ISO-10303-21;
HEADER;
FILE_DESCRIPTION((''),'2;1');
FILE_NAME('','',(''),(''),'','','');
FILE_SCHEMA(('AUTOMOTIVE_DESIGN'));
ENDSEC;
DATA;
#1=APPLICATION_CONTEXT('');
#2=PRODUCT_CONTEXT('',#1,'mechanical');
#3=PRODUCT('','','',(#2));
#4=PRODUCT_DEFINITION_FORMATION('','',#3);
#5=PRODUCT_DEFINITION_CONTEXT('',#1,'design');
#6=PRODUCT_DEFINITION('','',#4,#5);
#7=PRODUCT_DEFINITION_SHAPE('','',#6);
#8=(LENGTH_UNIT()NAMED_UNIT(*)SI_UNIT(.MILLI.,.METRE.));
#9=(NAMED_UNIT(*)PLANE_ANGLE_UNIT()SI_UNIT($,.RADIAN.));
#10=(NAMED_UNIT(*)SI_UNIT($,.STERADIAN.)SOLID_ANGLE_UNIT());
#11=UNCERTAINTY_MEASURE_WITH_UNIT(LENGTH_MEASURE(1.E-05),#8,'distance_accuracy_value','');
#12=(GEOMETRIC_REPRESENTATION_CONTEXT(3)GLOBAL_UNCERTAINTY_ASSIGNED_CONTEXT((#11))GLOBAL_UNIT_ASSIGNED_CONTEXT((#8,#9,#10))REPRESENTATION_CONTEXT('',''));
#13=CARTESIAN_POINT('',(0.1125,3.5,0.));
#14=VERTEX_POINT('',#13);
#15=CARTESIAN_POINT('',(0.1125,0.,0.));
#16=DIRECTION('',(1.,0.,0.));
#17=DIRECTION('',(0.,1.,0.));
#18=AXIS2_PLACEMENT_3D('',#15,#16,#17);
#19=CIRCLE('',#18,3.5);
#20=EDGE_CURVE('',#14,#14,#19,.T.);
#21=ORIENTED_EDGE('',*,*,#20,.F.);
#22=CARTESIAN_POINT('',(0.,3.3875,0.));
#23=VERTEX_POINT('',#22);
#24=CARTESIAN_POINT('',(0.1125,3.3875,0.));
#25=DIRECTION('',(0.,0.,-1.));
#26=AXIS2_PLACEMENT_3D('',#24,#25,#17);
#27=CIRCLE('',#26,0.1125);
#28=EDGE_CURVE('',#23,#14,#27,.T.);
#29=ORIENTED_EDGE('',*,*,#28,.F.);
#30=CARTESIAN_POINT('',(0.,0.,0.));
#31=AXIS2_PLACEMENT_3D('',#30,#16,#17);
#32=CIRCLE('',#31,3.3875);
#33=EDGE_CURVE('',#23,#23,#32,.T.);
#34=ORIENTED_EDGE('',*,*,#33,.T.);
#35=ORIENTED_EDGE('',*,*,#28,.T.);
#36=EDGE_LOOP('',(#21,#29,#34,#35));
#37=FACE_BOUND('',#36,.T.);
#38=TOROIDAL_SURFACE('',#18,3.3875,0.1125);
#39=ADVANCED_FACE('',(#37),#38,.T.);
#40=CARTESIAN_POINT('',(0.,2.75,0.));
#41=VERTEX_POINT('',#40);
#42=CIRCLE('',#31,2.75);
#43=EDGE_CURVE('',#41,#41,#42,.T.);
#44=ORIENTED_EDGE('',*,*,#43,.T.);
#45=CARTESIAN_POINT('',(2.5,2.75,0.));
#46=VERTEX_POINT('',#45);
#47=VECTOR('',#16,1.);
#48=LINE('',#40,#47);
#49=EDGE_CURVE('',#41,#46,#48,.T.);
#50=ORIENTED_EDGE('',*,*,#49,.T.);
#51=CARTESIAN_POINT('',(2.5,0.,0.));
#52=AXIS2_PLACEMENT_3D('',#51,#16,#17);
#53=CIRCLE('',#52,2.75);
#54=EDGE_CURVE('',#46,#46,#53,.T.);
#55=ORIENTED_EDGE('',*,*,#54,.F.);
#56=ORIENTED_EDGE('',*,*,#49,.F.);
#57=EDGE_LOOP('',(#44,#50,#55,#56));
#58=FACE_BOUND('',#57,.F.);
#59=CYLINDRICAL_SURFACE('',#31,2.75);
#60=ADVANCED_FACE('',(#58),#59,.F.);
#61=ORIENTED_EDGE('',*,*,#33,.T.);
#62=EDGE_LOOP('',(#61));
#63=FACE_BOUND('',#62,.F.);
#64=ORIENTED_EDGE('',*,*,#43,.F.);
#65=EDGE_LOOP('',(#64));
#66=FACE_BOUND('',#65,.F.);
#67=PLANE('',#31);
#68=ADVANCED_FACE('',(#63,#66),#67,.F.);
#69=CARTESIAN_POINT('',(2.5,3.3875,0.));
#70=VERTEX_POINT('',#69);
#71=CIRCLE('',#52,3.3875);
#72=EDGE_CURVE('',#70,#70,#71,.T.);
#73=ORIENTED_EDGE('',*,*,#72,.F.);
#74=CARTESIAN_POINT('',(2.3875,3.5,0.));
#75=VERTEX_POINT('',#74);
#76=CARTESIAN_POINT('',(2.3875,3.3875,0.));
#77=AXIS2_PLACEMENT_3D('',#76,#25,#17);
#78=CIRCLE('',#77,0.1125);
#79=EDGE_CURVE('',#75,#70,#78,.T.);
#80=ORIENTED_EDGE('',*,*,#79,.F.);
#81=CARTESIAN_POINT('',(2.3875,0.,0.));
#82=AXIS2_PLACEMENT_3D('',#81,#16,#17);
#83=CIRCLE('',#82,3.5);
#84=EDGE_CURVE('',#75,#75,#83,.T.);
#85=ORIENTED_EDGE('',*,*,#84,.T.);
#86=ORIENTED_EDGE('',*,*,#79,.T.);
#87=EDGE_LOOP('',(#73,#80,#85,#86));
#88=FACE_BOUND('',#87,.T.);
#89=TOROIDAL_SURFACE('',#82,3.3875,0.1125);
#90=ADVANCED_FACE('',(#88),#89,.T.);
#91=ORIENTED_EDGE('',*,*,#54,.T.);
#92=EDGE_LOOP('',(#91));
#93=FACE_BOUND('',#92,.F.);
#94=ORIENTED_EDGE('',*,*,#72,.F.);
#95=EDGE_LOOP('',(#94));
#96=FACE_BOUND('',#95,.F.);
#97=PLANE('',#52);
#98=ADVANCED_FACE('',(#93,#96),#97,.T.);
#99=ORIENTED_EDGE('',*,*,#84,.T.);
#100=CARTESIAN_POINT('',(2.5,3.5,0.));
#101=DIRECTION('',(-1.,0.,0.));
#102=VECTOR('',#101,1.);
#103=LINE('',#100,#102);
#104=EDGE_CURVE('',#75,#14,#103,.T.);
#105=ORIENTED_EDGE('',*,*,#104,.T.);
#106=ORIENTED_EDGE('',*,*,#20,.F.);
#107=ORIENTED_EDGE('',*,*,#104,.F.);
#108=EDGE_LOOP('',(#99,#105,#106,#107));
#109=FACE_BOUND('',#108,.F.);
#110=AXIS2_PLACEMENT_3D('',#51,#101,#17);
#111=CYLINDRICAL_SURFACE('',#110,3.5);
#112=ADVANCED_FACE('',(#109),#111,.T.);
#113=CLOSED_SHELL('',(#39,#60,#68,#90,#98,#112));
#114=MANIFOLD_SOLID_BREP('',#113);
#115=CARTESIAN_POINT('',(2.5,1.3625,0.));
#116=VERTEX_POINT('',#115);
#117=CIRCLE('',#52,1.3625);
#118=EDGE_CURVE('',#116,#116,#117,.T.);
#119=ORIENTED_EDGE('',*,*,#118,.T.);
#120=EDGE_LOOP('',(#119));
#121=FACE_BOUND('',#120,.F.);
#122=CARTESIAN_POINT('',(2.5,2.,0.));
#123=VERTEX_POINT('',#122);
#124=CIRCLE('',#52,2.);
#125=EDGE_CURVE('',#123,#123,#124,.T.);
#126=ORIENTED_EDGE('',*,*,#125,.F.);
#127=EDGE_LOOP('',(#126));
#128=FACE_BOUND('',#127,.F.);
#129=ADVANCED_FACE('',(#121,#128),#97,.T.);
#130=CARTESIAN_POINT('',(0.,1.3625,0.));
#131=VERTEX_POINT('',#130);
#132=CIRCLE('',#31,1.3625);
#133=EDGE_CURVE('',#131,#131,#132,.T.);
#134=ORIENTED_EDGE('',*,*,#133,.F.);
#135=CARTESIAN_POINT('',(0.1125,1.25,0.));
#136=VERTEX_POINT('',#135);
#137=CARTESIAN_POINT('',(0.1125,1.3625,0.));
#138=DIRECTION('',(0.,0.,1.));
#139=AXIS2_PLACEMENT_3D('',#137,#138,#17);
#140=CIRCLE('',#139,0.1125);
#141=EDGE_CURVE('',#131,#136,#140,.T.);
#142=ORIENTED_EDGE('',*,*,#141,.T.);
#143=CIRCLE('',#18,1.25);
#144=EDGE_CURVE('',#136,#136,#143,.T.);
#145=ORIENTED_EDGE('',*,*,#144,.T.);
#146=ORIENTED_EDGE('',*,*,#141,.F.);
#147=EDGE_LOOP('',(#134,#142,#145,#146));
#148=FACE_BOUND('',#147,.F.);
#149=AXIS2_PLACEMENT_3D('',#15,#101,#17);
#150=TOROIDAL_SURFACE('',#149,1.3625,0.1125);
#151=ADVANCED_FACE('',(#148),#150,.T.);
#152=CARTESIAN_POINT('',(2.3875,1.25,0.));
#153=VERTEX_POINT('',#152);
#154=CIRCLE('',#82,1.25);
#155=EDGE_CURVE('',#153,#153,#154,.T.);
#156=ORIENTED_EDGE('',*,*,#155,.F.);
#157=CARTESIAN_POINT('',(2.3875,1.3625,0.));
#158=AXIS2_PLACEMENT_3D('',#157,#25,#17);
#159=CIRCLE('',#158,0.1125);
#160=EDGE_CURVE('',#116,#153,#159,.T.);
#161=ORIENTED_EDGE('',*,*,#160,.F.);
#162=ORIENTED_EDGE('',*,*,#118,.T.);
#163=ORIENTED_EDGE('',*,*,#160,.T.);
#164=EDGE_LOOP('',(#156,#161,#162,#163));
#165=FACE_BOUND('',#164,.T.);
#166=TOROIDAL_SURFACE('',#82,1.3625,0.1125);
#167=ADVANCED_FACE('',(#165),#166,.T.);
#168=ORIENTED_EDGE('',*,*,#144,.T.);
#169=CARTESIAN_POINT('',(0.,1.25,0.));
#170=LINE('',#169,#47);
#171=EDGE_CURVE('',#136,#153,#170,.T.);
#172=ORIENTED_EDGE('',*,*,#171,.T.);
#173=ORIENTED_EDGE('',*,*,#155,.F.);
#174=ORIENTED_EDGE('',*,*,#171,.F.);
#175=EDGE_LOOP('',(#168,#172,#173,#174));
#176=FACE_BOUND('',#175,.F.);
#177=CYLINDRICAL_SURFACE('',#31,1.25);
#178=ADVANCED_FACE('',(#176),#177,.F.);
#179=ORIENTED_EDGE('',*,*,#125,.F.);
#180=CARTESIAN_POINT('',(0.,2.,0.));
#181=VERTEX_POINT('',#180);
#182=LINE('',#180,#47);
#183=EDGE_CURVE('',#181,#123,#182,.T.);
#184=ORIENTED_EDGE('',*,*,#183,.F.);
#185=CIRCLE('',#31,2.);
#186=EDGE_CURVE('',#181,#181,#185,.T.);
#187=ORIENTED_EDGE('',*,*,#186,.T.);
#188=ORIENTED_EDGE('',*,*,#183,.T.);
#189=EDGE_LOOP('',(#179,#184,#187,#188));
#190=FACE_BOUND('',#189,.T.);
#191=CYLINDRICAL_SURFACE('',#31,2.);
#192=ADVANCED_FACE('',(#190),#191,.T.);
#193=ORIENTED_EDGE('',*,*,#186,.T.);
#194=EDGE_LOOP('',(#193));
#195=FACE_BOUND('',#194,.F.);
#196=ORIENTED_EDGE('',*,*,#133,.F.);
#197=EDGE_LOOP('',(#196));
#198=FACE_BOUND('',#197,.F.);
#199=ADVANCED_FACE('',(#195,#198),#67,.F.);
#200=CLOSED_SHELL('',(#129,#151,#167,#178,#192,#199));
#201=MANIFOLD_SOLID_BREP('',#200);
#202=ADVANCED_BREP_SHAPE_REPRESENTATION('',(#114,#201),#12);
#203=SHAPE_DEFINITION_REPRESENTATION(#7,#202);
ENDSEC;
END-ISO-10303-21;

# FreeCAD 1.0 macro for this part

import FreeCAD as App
import Part
import Sketcher


def edges_at(feature, points):
    """Names of the edges that pass closest to the given points."""
    edges = feature.Shape.Edges
    near = lambda p: min(range(len(edges)), key=lambda i: edges[i].distToShape(Part.Vertex(*p))[0])
    return sorted({f"Edge{near(p) + 1}" for p in points})


def add_polygon(sketch, points):
    """Adds a closed chain of lines whose ends are joined by coincident constraints."""
    first, n = sketch.GeometryCount, len(points)
    for a, b in zip(points, points[1:] + points[:1]):
        sketch.addGeometry(Part.LineSegment(App.Vector(*a, 0), App.Vector(*b, 0)), False)
    for i in range(n):
        sketch.addConstraint(Sketcher.Constraint("Coincident", first + i, 2, first + (i + 1) % n, 1))

doc = App.newDocument("Part")
body = doc.addObject("PartDesign::Body", "Body")
body.AllowCompound = True

# Sketch on XY plane
sketch1 = body.newObject("Sketcher::SketchObject", "Sketch")
sketch1.AttachmentSupport = (doc.getObject("XY_Plane"), [""])
sketch1.MapMode = "FlatFace"
add_polygon(sketch1, [(0, 2), (0, 1.2), (2.5, 1.2), (2.5, 2)])  # lines 0-3
add_polygon(sketch1, [(0, 3.5), (0, 2.8), (2.5, 2.8), (2.5, 3.5)])  # lines 4-7
sketch1.addConstraint(Sketcher.Constraint("Vertical", 0))
sketch1.addConstraint(Sketcher.Constraint("Horizontal", 1))
sketch1.addConstraint(Sketcher.Constraint("Vertical", 2))
sketch1.addConstraint(Sketcher.Constraint("Horizontal", 3))
sketch1.addConstraint(Sketcher.Constraint("Vertical", 4))
sketch1.addConstraint(Sketcher.Constraint("Horizontal", 5))
sketch1.addConstraint(Sketcher.Constraint("Vertical", 6))
sketch1.addConstraint(Sketcher.Constraint("Horizontal", 7))
sketch1.addConstraint(Sketcher.Constraint("PointOnObject", 0, 2, -2))
sketch1.addConstraint(Sketcher.Constraint("PointOnObject", 4, 2, -2))
sketch1.addConstraint(Sketcher.Constraint("Vertical", 2, 2, 5, 2))
sketch1.addConstraint(Sketcher.Constraint("Equal", 2, 4))
sketch1.addConstraint(Sketcher.Constraint("DistanceX", 1, 1, 1, 2, 2.5))
sketch1.addConstraint(Sketcher.Constraint("DistanceY", -1, 1, 2, 2, 2.0))
sketch1.addConstraint(Sketcher.Constraint("DistanceY", 0, 2, 0, 1, 0.75))
sketch1.addConstraint(Sketcher.Constraint("DistanceY", -1, 1, 6, 2, 3.5))
revolution = body.newObject("PartDesign::Revolution", "Revolution")
revolution.Profile = sketch1
revolution.ReferenceAxis = (sketch1, ["H_Axis"])
revolution.Angle = 360
doc.recompute()

fillet = body.newObject("PartDesign::Fillet", "Fillet")
fillet.Base = (revolution, edges_at(revolution, [
    (0, -3.5, 0),
    (2.5, -3.5, 0),
    (0, -1.25, 0),
    (2.5, -1.25, 0),
]))
fillet.Radius = 0.1125

doc.recompute()
